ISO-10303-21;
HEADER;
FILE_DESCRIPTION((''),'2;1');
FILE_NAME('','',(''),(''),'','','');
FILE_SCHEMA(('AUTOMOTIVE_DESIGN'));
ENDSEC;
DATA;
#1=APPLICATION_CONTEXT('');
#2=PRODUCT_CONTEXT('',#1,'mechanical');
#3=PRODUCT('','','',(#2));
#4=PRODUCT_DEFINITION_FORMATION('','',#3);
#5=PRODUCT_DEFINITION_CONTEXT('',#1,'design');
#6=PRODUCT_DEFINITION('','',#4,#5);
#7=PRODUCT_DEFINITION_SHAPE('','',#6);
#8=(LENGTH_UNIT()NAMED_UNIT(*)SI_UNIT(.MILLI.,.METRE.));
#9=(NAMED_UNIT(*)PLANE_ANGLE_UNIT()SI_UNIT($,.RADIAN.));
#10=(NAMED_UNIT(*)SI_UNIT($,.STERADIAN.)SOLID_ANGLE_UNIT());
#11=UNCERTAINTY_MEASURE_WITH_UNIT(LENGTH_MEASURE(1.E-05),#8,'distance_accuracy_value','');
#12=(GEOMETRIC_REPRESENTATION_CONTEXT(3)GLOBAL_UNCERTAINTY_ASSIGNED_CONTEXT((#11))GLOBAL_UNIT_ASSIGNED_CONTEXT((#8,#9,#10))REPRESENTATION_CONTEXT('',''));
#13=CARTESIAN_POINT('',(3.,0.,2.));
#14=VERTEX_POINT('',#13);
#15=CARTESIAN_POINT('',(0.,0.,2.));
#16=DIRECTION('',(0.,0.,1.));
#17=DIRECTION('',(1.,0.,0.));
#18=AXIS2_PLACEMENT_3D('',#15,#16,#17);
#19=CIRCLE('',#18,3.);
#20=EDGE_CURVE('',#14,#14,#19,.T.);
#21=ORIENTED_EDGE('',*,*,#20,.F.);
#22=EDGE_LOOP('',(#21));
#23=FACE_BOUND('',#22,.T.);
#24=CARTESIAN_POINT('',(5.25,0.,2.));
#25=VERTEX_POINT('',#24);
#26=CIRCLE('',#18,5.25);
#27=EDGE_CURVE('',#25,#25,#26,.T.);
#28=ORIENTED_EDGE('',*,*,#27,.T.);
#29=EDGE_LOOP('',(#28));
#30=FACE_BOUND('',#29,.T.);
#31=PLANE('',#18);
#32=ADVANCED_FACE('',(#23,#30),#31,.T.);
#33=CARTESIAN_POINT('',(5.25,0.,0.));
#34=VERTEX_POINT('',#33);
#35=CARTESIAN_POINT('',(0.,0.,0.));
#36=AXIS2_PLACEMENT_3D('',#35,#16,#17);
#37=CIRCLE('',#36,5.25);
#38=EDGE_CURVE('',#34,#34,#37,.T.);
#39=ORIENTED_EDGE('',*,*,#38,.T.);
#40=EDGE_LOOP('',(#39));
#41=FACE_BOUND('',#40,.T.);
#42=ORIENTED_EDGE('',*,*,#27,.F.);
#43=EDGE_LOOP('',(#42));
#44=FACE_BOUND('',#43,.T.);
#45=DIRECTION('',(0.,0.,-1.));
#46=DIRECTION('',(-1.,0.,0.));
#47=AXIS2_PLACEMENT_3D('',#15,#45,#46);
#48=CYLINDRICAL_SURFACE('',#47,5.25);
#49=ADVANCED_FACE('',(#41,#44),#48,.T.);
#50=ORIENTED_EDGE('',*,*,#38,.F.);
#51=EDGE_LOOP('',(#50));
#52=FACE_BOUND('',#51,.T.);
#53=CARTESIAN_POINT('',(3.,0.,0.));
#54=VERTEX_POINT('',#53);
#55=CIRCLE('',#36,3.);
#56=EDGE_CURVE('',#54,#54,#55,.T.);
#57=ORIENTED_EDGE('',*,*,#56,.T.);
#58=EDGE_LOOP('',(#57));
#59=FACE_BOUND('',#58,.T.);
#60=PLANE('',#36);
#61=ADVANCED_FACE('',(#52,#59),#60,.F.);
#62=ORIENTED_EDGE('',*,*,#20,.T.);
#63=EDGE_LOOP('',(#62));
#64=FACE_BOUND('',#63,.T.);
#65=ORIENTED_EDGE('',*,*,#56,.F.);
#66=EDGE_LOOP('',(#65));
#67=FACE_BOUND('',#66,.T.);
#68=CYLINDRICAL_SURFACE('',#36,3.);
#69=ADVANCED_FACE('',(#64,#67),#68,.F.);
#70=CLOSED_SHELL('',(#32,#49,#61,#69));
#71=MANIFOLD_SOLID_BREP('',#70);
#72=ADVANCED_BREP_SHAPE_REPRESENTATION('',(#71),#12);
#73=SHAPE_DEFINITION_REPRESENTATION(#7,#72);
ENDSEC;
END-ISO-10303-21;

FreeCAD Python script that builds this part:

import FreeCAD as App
import Part
import Sketcher

V = App.Vector
Q = App.Units.Quantity

doc = App.newDocument("Part")
body = doc.addObject("PartDesign::Body", "Body")

sketch1 = body.newObject("Sketcher::SketchObject", "Sketch")
sketch1.AttachmentSupport = (doc.getObject("XY_Plane"), [""])
sketch1.MapMode = "FlatFace"
sketch1.addGeometry(Part.Circle(V(0, 0, 0), V(0, 0, 1), 5), False)
sketch1.addConstraint([
    Sketcher.Constraint("Coincident", 0, 3, -1, 1),
    Sketcher.Constraint("Diameter", 0, Q("10.5 mm")),
])
pad1 = body.newObject("PartDesign::Pad", "Pad")
pad1.Profile = sketch1
pad1.Length = 2

sketch2 = body.newObject("Sketcher::SketchObject", "Sketch001")
sketch2.AttachmentSupport = (doc.getObject("XY_Plane"), [""])
sketch2.MapMode = "FlatFace"
sketch2.AttachmentOffset = App.Placement(V(0, 0, 2), App.Rotation())
sketch2.addGeometry(Part.Circle(V(0, 0, 0), V(0, 0, 1), 3), False)
sketch2.addConstraint([
    Sketcher.Constraint("Coincident", 0, 3, -1, 1),
    Sketcher.Constraint("Diameter", 0, Q("6 mm")),
])
pocket1 = body.newObject("PartDesign::Pocket", "Pocket")
pocket1.Profile = sketch2
pocket1.Length = 2

doc.recompute()
